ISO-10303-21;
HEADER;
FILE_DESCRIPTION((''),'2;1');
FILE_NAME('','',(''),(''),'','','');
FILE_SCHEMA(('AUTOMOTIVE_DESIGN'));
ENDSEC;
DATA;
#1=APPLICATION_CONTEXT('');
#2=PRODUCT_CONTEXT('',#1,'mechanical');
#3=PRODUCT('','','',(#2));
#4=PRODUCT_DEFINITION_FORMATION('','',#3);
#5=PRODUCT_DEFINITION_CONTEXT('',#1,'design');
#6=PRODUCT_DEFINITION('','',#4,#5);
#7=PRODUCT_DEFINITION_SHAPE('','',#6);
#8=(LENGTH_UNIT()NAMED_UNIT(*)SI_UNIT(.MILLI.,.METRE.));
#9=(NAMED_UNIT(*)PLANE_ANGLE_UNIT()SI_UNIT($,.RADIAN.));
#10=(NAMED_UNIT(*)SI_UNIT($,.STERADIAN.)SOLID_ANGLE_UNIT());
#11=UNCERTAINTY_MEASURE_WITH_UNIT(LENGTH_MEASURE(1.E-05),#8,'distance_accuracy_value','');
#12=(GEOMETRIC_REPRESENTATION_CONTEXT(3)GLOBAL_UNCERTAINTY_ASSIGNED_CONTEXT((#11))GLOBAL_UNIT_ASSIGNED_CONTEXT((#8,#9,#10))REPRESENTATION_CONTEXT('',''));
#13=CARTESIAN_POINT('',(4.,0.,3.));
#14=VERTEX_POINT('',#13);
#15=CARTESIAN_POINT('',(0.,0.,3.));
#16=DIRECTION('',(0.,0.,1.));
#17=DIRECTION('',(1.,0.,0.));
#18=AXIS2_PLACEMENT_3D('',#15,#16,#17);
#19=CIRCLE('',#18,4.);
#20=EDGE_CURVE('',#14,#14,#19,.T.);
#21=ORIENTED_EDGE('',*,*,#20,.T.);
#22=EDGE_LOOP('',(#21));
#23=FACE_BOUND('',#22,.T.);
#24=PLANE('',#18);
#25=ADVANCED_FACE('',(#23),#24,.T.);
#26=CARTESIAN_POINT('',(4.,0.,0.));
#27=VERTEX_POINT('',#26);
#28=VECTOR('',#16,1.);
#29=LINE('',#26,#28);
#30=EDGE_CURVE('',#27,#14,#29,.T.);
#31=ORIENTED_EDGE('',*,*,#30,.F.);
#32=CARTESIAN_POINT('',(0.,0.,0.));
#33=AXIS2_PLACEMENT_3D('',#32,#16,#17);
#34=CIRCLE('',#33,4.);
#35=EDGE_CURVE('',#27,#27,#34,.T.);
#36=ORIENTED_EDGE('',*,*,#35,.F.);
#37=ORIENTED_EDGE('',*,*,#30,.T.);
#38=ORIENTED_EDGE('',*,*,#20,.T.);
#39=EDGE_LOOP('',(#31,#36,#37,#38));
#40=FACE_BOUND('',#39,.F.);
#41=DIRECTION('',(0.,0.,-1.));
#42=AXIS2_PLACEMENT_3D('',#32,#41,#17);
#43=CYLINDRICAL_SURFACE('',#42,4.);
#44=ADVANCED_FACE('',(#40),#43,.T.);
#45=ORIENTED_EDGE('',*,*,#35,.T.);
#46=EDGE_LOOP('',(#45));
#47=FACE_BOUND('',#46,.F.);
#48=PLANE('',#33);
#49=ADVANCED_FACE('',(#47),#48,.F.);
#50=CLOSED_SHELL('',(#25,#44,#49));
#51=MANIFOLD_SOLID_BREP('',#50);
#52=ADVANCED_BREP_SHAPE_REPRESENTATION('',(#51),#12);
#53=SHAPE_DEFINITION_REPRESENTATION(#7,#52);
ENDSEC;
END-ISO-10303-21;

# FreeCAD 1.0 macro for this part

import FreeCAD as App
import Part
import Sketcher

doc = App.newDocument("Part")
body = doc.addObject("PartDesign::Body", "Body")

# Sketch on XY plane
sketch1 = doc.addObject("Sketcher::SketchObject", "Sketch")
body.addObject(sketch1)
sketch1.AttachmentSupport = (doc.XY_Plane, [""])
sketch1.MapMode = "FlatFace"
sketch1.addGeometry(Part.Circle(App.Vector(0, 0, 0), App.Vector(0, 0, 1), 4), False)
sketch1.addConstraint(Sketcher.Constraint("Coincident", 0, 3, -1, 1))
sketch1.addConstraint(Sketcher.Constraint("Diameter", 0, 8.0))
pad1 = doc.addObject("PartDesign::Pad", "Pad")
body.addObject(pad1)
pad1.Profile = sketch1
pad1.Length = 3

doc.recompute()
